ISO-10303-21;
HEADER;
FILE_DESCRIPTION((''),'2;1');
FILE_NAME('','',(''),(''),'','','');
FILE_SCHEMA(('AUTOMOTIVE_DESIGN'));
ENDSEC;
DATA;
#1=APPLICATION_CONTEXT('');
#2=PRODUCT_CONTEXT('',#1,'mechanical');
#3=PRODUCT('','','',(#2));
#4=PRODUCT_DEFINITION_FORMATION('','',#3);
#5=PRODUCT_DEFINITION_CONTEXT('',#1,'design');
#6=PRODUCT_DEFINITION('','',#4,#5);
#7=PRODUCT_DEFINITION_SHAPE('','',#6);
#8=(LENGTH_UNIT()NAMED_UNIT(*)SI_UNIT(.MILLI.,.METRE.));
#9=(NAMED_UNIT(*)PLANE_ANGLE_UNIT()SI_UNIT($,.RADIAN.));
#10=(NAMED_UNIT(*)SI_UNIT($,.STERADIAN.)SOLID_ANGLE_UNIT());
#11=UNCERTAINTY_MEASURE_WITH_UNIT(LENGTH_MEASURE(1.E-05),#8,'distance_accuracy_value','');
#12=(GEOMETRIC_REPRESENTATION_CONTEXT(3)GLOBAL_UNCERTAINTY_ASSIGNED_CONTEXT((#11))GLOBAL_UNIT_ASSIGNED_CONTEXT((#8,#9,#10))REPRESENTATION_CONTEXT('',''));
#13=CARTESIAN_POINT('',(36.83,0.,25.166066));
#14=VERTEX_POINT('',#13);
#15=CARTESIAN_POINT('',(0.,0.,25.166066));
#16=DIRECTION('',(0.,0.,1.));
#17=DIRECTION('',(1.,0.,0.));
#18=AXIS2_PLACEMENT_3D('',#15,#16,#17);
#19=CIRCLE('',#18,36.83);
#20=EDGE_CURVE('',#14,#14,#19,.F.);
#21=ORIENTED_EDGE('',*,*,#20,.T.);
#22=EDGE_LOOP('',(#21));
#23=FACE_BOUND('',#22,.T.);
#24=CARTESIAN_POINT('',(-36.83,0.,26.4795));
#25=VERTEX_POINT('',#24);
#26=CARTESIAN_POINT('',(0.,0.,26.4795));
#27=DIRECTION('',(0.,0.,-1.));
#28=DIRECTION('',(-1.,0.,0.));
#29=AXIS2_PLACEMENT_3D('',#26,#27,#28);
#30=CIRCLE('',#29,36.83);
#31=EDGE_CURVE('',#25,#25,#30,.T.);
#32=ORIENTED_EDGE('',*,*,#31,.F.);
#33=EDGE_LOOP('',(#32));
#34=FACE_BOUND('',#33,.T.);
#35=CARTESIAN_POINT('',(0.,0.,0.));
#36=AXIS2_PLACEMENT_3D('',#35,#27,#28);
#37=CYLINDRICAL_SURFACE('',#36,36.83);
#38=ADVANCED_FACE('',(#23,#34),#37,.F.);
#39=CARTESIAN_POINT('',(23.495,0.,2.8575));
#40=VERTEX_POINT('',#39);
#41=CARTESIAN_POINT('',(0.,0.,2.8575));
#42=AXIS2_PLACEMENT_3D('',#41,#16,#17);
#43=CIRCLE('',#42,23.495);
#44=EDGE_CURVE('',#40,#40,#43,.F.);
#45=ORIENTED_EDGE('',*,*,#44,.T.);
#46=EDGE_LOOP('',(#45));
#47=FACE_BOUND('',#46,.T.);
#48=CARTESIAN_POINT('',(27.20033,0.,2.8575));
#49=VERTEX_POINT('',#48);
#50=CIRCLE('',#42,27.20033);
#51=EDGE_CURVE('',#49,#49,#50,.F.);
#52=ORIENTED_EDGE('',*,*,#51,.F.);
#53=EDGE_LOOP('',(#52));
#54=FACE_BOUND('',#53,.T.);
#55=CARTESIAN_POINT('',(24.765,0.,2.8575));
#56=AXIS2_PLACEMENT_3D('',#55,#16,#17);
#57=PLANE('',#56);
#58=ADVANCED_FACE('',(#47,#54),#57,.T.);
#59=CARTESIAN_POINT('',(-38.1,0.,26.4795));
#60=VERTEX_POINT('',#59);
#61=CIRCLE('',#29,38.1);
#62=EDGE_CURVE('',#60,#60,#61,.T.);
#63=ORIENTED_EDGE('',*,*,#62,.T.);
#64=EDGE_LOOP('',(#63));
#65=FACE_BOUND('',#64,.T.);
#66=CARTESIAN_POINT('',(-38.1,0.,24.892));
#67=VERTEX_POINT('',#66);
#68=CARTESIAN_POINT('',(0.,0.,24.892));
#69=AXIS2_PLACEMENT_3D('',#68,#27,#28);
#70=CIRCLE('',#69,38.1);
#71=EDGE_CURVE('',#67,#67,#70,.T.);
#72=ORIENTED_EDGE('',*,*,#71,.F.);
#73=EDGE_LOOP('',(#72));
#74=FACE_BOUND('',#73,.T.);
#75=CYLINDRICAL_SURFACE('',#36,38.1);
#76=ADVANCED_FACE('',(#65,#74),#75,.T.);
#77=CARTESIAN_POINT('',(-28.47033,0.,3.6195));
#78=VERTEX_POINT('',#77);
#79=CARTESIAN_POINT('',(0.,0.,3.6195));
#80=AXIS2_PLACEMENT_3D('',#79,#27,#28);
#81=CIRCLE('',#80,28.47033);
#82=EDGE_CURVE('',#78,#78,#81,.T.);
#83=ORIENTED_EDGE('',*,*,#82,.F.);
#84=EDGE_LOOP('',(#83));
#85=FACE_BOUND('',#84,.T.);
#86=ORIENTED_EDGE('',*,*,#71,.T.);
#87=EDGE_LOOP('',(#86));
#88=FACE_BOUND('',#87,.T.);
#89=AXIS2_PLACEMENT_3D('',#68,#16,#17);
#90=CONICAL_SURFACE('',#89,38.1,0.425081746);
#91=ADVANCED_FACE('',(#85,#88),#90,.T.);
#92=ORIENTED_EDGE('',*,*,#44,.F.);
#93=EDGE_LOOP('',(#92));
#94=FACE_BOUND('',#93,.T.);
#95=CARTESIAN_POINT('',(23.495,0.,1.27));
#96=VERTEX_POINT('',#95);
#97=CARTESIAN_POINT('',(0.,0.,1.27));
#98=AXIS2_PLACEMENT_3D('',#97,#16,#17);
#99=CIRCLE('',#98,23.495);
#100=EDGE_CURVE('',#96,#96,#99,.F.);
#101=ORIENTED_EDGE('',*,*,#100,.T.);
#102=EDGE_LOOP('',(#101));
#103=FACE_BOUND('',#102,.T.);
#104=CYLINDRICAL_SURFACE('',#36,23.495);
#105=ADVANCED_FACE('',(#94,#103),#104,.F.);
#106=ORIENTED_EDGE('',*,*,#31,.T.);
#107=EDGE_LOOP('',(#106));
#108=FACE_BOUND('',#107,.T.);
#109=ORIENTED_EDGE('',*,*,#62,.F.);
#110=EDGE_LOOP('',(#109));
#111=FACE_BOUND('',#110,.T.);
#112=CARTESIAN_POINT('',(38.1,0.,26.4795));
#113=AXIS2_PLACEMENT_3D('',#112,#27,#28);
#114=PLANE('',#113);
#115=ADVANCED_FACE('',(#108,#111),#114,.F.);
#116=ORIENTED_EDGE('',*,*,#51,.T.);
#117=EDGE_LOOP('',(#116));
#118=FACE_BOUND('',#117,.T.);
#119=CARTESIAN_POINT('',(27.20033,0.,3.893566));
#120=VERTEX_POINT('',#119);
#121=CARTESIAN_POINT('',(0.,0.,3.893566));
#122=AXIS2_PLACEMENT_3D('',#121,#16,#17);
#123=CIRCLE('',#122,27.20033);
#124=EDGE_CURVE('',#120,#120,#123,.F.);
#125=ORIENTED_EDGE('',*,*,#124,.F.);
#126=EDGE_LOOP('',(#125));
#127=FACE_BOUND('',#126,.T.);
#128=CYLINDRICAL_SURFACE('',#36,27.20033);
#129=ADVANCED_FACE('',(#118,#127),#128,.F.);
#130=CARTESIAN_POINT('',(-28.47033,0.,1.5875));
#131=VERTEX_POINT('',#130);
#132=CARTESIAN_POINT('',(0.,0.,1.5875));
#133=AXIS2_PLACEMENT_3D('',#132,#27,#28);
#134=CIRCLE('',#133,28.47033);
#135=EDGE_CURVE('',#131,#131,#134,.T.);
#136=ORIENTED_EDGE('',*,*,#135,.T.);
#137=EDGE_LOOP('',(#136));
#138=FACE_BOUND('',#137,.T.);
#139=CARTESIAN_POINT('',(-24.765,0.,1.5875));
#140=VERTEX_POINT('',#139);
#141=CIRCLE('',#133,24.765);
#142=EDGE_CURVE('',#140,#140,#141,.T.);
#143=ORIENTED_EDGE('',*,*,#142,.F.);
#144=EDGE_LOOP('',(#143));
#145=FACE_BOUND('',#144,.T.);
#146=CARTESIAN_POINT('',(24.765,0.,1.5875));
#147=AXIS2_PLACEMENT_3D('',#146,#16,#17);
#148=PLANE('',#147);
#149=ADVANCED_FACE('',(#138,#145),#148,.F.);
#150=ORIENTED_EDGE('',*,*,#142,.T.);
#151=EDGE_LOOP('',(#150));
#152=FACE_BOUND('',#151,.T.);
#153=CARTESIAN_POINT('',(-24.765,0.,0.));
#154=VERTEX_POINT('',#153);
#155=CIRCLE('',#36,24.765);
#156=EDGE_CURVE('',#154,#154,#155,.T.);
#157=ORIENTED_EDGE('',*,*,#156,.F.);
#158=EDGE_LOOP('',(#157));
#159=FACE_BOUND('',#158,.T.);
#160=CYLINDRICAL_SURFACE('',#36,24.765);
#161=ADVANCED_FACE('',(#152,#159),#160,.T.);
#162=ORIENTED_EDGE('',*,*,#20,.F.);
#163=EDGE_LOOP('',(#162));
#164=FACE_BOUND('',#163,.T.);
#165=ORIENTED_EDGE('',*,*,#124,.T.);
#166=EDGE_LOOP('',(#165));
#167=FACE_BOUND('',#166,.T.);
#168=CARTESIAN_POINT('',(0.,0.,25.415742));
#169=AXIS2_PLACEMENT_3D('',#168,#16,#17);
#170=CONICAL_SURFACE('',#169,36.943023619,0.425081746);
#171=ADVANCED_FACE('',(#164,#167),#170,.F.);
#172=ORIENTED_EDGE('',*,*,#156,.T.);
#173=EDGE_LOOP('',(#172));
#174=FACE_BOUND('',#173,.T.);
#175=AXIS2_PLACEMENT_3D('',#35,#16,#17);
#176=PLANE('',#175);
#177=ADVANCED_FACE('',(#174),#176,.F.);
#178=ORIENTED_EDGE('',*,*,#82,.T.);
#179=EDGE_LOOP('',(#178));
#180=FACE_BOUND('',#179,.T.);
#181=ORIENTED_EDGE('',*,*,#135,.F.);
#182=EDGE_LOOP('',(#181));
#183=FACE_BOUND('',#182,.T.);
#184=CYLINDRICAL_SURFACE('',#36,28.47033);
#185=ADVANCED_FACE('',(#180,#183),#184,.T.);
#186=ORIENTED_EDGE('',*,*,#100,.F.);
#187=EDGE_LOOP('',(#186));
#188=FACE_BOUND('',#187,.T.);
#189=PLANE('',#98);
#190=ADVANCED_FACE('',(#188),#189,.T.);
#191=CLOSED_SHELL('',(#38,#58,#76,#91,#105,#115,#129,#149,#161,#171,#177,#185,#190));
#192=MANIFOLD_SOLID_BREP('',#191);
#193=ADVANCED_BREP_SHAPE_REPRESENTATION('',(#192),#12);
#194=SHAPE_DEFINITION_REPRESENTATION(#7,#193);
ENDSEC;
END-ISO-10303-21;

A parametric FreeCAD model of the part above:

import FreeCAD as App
import Part
import Sketcher
Q = App.Units.Quantity


def faces_at(feature, points):
    """Names of the faces that lie closest to the given points."""
    faces = feature.Shape.Faces
    near = lambda p: min(range(len(faces)), key=lambda i: faces[i].distToShape(Part.Vertex(*p))[0])
    return sorted({f"Face{near(p) + 1}" for p in points})


def add_polygon(sketch, points):
    """Adds a closed chain of lines whose ends are joined by coincident constraints."""
    first, n = sketch.GeometryCount, len(points)
    for a, b in zip(points, points[1:] + points[:1]):
        sketch.addGeometry(Part.LineSegment(App.Vector(*a, 0), App.Vector(*b, 0)), False)
    for i in range(n):
        sketch.addConstraint(Sketcher.Constraint("Coincident", first + i, 2, first + (i + 1) % n, 1))

doc = App.newDocument("Part")
body = doc.addObject("PartDesign::Body", "Body")

sketch1 = doc.addObject("Sketcher::SketchObject", "Sketch")
body.addObject(sketch1)
sketch1.AttachmentSupport = (doc.XZ_Plane, [""])
sketch1.MapMode = "FlatFace"
add_polygon(sketch1, [(0, 0), (0, 26.5), (38.1, 26.5), (38.1, 24.9), (28.5, 3.6), (28.5, 1.6), (24.8, 1.6), (24.8, 0)])
sketch1.addConstraint([
    Sketcher.Constraint("Vertical", 0),
    Sketcher.Constraint("Horizontal", 1),
    Sketcher.Constraint("Vertical", 2),
    Sketcher.Constraint("Vertical", 4),
    Sketcher.Constraint("Horizontal", 5),
    Sketcher.Constraint("Vertical", 6),
    Sketcher.Constraint("Horizontal", 7),
    Sketcher.Constraint("Coincident", 7, 2, -1, 1),
    Sketcher.Constraint("Equal", 2, 6),
    Sketcher.Constraint("DistanceX", 1, 1, 1, 2, Q("1.5 in")),
    Sketcher.Constraint("DistanceY", 4, 2, 4, 1, Q("0.08 in")),
    Sketcher.Constraint("DistanceY", 3, 2, 1, 2, Q("0.9 in")),
    Sketcher.Constraint("DistanceX", 7, 2, 7, 1, Q("0.975 in")),
    Sketcher.Constraint("DistanceY", 2, 2, 2, 1, Q("0.0625 in")),
    Sketcher.Constraint("DistanceX", 5, 2, 5, 1, Q("3.70533 mm")),
])
revolution = doc.addObject("PartDesign::Revolution", "Revolution")
body.addObject(revolution)
revolution.Profile = sketch1
revolution.ReferenceAxis = (sketch1, ["V_Axis"])
revolution.Angle = 360
doc.recompute()

thickness = doc.addObject("PartDesign::Thickness", "Thickness")
body.addObject(thickness)
thickness.Base = (revolution, faces_at(revolution, [(0, 0, 26.48)]))
thickness.Value = Q("0.05 in")
thickness.Reversed = True
thickness.Join = "Intersection"

doc.recompute()
